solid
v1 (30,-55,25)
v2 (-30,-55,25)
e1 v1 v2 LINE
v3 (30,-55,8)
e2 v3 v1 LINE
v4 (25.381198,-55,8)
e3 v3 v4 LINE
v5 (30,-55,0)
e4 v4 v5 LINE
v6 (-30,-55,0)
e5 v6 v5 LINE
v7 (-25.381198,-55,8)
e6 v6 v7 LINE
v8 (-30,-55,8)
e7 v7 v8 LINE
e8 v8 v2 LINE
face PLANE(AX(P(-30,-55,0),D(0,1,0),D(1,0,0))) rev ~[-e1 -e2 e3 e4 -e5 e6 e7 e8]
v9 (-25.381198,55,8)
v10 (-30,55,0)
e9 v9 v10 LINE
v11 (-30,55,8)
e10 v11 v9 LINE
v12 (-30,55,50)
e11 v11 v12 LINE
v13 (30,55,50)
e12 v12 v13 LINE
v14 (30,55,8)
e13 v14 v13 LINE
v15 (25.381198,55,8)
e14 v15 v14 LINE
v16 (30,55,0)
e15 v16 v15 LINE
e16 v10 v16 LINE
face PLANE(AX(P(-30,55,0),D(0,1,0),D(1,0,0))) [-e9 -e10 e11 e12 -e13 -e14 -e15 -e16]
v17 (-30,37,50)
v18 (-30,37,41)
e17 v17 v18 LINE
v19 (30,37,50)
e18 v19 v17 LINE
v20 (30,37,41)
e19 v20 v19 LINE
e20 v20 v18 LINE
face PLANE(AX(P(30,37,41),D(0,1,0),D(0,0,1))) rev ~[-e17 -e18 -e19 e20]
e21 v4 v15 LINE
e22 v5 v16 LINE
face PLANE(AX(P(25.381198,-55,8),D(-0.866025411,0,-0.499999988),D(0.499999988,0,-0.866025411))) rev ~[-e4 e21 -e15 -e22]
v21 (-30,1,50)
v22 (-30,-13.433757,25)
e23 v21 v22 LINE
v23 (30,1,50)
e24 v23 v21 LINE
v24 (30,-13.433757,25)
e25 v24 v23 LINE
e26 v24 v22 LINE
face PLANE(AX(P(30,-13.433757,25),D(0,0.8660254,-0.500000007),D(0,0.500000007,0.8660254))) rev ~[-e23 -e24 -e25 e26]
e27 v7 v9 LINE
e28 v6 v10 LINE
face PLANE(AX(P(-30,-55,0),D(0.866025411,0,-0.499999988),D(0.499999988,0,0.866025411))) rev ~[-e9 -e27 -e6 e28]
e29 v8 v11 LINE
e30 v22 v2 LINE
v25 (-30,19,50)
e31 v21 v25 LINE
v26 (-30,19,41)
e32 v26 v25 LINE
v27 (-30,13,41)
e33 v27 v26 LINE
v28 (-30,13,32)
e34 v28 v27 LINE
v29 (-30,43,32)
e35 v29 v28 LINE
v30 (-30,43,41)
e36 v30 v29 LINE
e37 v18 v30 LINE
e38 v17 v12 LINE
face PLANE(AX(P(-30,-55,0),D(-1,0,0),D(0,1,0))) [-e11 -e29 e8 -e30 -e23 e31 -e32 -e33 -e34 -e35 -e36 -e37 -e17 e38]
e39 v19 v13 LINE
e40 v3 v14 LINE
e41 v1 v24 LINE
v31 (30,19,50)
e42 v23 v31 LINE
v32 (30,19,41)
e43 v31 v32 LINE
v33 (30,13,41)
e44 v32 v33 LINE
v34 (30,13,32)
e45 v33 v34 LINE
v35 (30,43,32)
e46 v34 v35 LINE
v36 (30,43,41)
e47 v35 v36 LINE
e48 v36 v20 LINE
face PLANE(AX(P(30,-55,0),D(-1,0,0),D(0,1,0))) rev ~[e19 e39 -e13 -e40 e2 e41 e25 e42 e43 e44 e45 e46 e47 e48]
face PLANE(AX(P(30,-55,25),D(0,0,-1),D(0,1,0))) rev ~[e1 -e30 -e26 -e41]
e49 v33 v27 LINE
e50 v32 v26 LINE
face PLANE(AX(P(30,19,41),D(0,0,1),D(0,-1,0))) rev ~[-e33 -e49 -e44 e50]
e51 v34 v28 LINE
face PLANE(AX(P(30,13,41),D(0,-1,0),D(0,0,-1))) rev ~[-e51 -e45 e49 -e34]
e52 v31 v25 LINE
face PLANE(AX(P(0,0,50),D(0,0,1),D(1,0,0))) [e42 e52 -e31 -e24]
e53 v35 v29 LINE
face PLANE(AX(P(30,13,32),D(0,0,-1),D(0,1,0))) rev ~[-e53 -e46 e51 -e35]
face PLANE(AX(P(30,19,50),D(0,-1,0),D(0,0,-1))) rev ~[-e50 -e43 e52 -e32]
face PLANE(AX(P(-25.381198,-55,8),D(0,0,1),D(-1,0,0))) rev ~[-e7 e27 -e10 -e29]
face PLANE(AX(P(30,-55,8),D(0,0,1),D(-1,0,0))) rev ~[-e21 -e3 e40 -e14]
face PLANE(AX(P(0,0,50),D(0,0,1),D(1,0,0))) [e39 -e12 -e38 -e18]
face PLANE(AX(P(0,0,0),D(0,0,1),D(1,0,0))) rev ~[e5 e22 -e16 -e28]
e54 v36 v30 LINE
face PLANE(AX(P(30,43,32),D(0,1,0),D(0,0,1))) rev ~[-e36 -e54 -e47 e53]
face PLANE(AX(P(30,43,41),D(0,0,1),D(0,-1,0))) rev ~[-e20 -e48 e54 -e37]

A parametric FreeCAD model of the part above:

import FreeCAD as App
import Part
import Sketcher
from FreeCAD import Vector
Q = App.Units.Quantity

doc = App.newDocument("Part")
params = doc.addObject("Spreadsheet::Sheet", "Params")
for row, (alias, value) in enumerate([
    ("sketch1_width", "60 mm"),
    ("sketch1_height", "110 mm"),
    ("pad1_length", "50 mm"),
    ("sketch2_width", "56 mm"),
    ("sketch2_width2", "18 mm"),
    ("sketch2_width3", "6 mm"),
    ("sketch2_height", "25 mm"),
    ("sketch2_height2", "9 mm"),
    ("sketch3_height", "8 mm"),
], start=1):
    params.set(f"A{row}", alias)
    params.set(f"B{row}", "=" + value)
    params.setAlias(f"B{row}", alias)

body = doc.addObject("PartDesign::Body", "Body")

sketch1 = doc.addObject("Sketcher::SketchObject", "Sketch")
body.addObject(sketch1)
sketch1.AttachmentSupport = (doc.XY_Plane, [""])
sketch1.MapMode = "FlatFace"
sketch1.addGeometry(Part.LineSegment(Vector(-30, 55, 0), Vector(-30, -55, 0)), False)
sketch1.addGeometry(Part.LineSegment(Vector(-30, -55, 0), Vector(30, -55, 0)), False)
sketch1.addGeometry(Part.LineSegment(Vector(30, -55, 0), Vector(30, 55, 0)), False)
sketch1.addGeometry(Part.LineSegment(Vector(30, 55, 0), Vector(-30, 55, 0)), False)
sketch1.addConstraint(Sketcher.Constraint("Coincident", 0, 2, 1, 1))
sketch1.addConstraint(Sketcher.Constraint("Coincident", 1, 2, 2, 1))
sketch1.addConstraint(Sketcher.Constraint("Coincident", 2, 2, 3, 1))
sketch1.addConstraint(Sketcher.Constraint("Coincident", 3, 2, 0, 1))
sketch1.addConstraint(Sketcher.Constraint("Vertical", 0))
sketch1.addConstraint(Sketcher.Constraint("Horizontal", 1))
sketch1.addConstraint(Sketcher.Constraint("Vertical", 2))
sketch1.addConstraint(Sketcher.Constraint("Horizontal", 3))
sketch1.addConstraint(Sketcher.Constraint("Symmetric", 0, 2, 2, 2, -1, 1))
sketch1.addConstraint(Sketcher.Constraint("DistanceX", 1, 1, 1, 2, Q("60 mm")))
sketch1.addConstraint(Sketcher.Constraint("DistanceY", 0, 2, 0, 1, Q("110 mm")))
sketch1.setExpression("Constraints[9]", "Params.sketch1_width")
sketch1.setExpression("Constraints[10]", "Params.sketch1_height")
pad1 = doc.addObject("PartDesign::Pad", "Pad")
body.addObject(pad1)
pad1.Profile = sketch1
pad1.setExpression("Length", "Params.pad1_length")

sketch2 = doc.addObject("Sketcher::SketchObject", "Sketch001")
body.addObject(sketch2)
sketch2.AttachmentSupport = (doc.YZ_Plane, [""])
sketch2.MapMode = "FlatFace"
sketch2.AttachmentOffset = App.Placement(Vector(0, 0, 30), App.Rotation())
sketch2.addGeometry(Part.LineSegment(Vector(-55, 50, 0), Vector(-55, 25, 0)), False)
sketch2.addGeometry(Part.LineSegment(Vector(-55, 25, 0), Vector(-13.433757, 25, 0)), False)
sketch2.addGeometry(Part.LineSegment(Vector(-13.433757, 25, 0), Vector(1, 50, 0)), False)
sketch2.addGeometry(Part.LineSegment(Vector(1, 50, 0), Vector(-55, 50, 0)), False)
sketch2.addGeometry(Part.LineSegment(Vector(37, 50, 0), Vector(19, 50, 0)), False)
sketch2.addGeometry(Part.LineSegment(Vector(19, 50, 0), Vector(19, 41, 0)), False)
sketch2.addGeometry(Part.LineSegment(Vector(19, 41, 0), Vector(13, 41, 0)), False)
sketch2.addGeometry(Part.LineSegment(Vector(13, 41, 0), Vector(13, 32, 0)), False)
sketch2.addGeometry(Part.LineSegment(Vector(13, 32, 0), Vector(43, 32, 0)), False)
sketch2.addGeometry(Part.LineSegment(Vector(43, 32, 0), Vector(43, 41, 0)), False)
sketch2.addGeometry(Part.LineSegment(Vector(43, 41, 0), Vector(37, 41, 0)), False)
sketch2.addGeometry(Part.LineSegment(Vector(37, 41, 0), Vector(37, 50, 0)), False)
sketch2.addConstraint(Sketcher.Constraint("Coincident", 0, 2, 1, 1))
sketch2.addConstraint(Sketcher.Constraint("Coincident", 1, 2, 2, 1))
sketch2.addConstraint(Sketcher.Constraint("Coincident", 2, 2, 3, 1))
sketch2.addConstraint(Sketcher.Constraint("Coincident", 3, 2, 0, 1))
sketch2.addConstraint(Sketcher.Constraint("Coincident", 4, 2, 5, 1))
sketch2.addConstraint(Sketcher.Constraint("Coincident", 5, 2, 6, 1))
sketch2.addConstraint(Sketcher.Constraint("Coincident", 6, 2, 7, 1))
sketch2.addConstraint(Sketcher.Constraint("Coincident", 7, 2, 8, 1))
sketch2.addConstraint(Sketcher.Constraint("Coincident", 8, 2, 9, 1))
sketch2.addConstraint(Sketcher.Constraint("Coincident", 9, 2, 10, 1))
sketch2.addConstraint(Sketcher.Constraint("Coincident", 10, 2, 11, 1))
sketch2.addConstraint(Sketcher.Constraint("Coincident", 11, 2, 4, 1))
sketch2.addConstraint(Sketcher.Constraint("Vertical", 0))
sketch2.addConstraint(Sketcher.Constraint("Horizontal", 1))
sketch2.addConstraint(Sketcher.Constraint("Horizontal", 3))
sketch2.addConstraint(Sketcher.Constraint("Horizontal", 4))
sketch2.addConstraint(Sketcher.Constraint("Vertical", 5))
sketch2.addConstraint(Sketcher.Constraint("Horizontal", 6))
sketch2.addConstraint(Sketcher.Constraint("Vertical", 7))
sketch2.addConstraint(Sketcher.Constraint("Horizontal", 8))
sketch2.addConstraint(Sketcher.Constraint("Vertical", 9))
sketch2.addConstraint(Sketcher.Constraint("Horizontal", 10))
sketch2.addConstraint(Sketcher.Constraint("Vertical", 11))
sketch2.addConstraint(Sketcher.Constraint("Horizontal", 3, 2, 4, 2))
sketch2.addConstraint(Sketcher.Constraint("Horizontal", 6, 2, 9, 2))
sketch2.addConstraint(Sketcher.Constraint("Equal", 6, 10))
sketch2.addConstraint(Sketcher.Constraint("Equal", 5, 7))
sketch2.addConstraint(Sketcher.Constraint("DistanceX", 3, 2, 3, 1, Q("56 mm")))
sketch2.addConstraint(Sketcher.Constraint("DistanceX", 4, 2, 4, 1, Q("18 mm")))
sketch2.addConstraint(Sketcher.Constraint("DistanceX", 6, 2, 6, 1, Q("6 mm")))
sketch2.addConstraint(Sketcher.Constraint("DistanceY", 0, 2, 0, 1, Q("25 mm")))
sketch2.addConstraint(Sketcher.Constraint("DistanceY", 5, 2, 5, 1, Q("9 mm")))
sketch2.addConstraint(Sketcher.Constraint("Angle", 2, Q("60 deg")))
sketch2.addConstraint(Sketcher.Constraint("DistanceX", 0, 2, -1, 1, Q("55 mm")))
sketch2.addConstraint(Sketcher.Constraint("DistanceY", -1, 1, 0, 2, Q("25 mm")))
sketch2.addConstraint(Sketcher.Constraint("DistanceX", -1, 1, 4, 2, Q("19 mm")))
sketch2.setExpression("Constraints[27]", "Params.sketch2_width")
sketch2.setExpression("Constraints[28]", "Params.sketch2_width2")
sketch2.setExpression("Constraints[29]", "Params.sketch2_width3")
sketch2.setExpression("Constraints[30]", "Params.sketch2_height")
sketch2.setExpression("Constraints[31]", "Params.sketch2_height2")
pocket1 = doc.addObject("PartDesign::Pocket", "Pocket")
body.addObject(pocket1)
pocket1.Profile = sketch2
pocket1.Type = "ThroughAll"

sketch3 = doc.addObject("Sketcher::SketchObject", "Sketch002")
body.addObject(sketch3)
sketch3.AttachmentSupport = (doc.XZ_Plane, [""])
sketch3.MapMode = "FlatFace"
sketch3.AttachmentOffset = App.Placement(Vector(0, 0, 55), App.Rotation())
sketch3.addGeometry(Part.LineSegment(Vector(25.381198, 8, 0), Vector(30, 0, 0)), False)
sketch3.addGeometry(Part.LineSegment(Vector(30, 0, 0), Vector(30, 8, 0)), False)
sketch3.addGeometry(Part.LineSegment(Vector(30, 8, 0), Vector(25.381198, 8, 0)), False)
sketch3.addGeometry(Part.LineSegment(Vector(-25.381198, 8, 0), Vector(-30, 8, 0)), False)
sketch3.addGeometry(Part.LineSegment(Vector(-30, 8, 0), Vector(-30, 0, 0)), False)
sketch3.addGeometry(Part.LineSegment(Vector(-30, 0, 0), Vector(-25.381198, 8, 0)), False)
sketch3.addConstraint(Sketcher.Constraint("Coincident", 0, 2, 1, 1))
sketch3.addConstraint(Sketcher.Constraint("Coincident", 1, 2, 2, 1))
sketch3.addConstraint(Sketcher.Constraint("Coincident", 2, 2, 0, 1))
sketch3.addConstraint(Sketcher.Constraint("Coincident", 3, 2, 4, 1))
sketch3.addConstraint(Sketcher.Constraint("Coincident", 4, 2, 5, 1))
sketch3.addConstraint(Sketcher.Constraint("Coincident", 5, 2, 3, 1))
sketch3.addConstraint(Sketcher.Constraint("Vertical", 1))
sketch3.addConstraint(Sketcher.Constraint("Horizontal", 2))
sketch3.addConstraint(Sketcher.Constraint("Horizontal", 3))
sketch3.addConstraint(Sketcher.Constraint("Vertical", 4))
sketch3.addConstraint(Sketcher.Constraint("Symmetric", 0, 2, 4, 2, -1, 1))
sketch3.addConstraint(Sketcher.Constraint("Symmetric", 2, 2, 5, 2, -2))
sketch3.addConstraint(Sketcher.Constraint("PointOnObject", 0, 2, -1))
sketch3.addConstraint(Sketcher.Constraint("DistanceY", 1, 1, 1, 2, Q("8 mm")))
sketch3.addConstraint(Sketcher.Constraint("Angle", 0, Q("-60.000001 deg")))
sketch3.addConstraint(Sketcher.Constraint("DistanceX", -1, 1, 0, 2, Q("30 mm")))
sketch3.setExpression("Constraints[13]", "Params.sketch3_height")
pocket2 = doc.addObject("PartDesign::Pocket", "Pocket001")
body.addObject(pocket2)
pocket2.Profile = sketch3
pocket2.Type = "ThroughAll"

doc.recompute()
